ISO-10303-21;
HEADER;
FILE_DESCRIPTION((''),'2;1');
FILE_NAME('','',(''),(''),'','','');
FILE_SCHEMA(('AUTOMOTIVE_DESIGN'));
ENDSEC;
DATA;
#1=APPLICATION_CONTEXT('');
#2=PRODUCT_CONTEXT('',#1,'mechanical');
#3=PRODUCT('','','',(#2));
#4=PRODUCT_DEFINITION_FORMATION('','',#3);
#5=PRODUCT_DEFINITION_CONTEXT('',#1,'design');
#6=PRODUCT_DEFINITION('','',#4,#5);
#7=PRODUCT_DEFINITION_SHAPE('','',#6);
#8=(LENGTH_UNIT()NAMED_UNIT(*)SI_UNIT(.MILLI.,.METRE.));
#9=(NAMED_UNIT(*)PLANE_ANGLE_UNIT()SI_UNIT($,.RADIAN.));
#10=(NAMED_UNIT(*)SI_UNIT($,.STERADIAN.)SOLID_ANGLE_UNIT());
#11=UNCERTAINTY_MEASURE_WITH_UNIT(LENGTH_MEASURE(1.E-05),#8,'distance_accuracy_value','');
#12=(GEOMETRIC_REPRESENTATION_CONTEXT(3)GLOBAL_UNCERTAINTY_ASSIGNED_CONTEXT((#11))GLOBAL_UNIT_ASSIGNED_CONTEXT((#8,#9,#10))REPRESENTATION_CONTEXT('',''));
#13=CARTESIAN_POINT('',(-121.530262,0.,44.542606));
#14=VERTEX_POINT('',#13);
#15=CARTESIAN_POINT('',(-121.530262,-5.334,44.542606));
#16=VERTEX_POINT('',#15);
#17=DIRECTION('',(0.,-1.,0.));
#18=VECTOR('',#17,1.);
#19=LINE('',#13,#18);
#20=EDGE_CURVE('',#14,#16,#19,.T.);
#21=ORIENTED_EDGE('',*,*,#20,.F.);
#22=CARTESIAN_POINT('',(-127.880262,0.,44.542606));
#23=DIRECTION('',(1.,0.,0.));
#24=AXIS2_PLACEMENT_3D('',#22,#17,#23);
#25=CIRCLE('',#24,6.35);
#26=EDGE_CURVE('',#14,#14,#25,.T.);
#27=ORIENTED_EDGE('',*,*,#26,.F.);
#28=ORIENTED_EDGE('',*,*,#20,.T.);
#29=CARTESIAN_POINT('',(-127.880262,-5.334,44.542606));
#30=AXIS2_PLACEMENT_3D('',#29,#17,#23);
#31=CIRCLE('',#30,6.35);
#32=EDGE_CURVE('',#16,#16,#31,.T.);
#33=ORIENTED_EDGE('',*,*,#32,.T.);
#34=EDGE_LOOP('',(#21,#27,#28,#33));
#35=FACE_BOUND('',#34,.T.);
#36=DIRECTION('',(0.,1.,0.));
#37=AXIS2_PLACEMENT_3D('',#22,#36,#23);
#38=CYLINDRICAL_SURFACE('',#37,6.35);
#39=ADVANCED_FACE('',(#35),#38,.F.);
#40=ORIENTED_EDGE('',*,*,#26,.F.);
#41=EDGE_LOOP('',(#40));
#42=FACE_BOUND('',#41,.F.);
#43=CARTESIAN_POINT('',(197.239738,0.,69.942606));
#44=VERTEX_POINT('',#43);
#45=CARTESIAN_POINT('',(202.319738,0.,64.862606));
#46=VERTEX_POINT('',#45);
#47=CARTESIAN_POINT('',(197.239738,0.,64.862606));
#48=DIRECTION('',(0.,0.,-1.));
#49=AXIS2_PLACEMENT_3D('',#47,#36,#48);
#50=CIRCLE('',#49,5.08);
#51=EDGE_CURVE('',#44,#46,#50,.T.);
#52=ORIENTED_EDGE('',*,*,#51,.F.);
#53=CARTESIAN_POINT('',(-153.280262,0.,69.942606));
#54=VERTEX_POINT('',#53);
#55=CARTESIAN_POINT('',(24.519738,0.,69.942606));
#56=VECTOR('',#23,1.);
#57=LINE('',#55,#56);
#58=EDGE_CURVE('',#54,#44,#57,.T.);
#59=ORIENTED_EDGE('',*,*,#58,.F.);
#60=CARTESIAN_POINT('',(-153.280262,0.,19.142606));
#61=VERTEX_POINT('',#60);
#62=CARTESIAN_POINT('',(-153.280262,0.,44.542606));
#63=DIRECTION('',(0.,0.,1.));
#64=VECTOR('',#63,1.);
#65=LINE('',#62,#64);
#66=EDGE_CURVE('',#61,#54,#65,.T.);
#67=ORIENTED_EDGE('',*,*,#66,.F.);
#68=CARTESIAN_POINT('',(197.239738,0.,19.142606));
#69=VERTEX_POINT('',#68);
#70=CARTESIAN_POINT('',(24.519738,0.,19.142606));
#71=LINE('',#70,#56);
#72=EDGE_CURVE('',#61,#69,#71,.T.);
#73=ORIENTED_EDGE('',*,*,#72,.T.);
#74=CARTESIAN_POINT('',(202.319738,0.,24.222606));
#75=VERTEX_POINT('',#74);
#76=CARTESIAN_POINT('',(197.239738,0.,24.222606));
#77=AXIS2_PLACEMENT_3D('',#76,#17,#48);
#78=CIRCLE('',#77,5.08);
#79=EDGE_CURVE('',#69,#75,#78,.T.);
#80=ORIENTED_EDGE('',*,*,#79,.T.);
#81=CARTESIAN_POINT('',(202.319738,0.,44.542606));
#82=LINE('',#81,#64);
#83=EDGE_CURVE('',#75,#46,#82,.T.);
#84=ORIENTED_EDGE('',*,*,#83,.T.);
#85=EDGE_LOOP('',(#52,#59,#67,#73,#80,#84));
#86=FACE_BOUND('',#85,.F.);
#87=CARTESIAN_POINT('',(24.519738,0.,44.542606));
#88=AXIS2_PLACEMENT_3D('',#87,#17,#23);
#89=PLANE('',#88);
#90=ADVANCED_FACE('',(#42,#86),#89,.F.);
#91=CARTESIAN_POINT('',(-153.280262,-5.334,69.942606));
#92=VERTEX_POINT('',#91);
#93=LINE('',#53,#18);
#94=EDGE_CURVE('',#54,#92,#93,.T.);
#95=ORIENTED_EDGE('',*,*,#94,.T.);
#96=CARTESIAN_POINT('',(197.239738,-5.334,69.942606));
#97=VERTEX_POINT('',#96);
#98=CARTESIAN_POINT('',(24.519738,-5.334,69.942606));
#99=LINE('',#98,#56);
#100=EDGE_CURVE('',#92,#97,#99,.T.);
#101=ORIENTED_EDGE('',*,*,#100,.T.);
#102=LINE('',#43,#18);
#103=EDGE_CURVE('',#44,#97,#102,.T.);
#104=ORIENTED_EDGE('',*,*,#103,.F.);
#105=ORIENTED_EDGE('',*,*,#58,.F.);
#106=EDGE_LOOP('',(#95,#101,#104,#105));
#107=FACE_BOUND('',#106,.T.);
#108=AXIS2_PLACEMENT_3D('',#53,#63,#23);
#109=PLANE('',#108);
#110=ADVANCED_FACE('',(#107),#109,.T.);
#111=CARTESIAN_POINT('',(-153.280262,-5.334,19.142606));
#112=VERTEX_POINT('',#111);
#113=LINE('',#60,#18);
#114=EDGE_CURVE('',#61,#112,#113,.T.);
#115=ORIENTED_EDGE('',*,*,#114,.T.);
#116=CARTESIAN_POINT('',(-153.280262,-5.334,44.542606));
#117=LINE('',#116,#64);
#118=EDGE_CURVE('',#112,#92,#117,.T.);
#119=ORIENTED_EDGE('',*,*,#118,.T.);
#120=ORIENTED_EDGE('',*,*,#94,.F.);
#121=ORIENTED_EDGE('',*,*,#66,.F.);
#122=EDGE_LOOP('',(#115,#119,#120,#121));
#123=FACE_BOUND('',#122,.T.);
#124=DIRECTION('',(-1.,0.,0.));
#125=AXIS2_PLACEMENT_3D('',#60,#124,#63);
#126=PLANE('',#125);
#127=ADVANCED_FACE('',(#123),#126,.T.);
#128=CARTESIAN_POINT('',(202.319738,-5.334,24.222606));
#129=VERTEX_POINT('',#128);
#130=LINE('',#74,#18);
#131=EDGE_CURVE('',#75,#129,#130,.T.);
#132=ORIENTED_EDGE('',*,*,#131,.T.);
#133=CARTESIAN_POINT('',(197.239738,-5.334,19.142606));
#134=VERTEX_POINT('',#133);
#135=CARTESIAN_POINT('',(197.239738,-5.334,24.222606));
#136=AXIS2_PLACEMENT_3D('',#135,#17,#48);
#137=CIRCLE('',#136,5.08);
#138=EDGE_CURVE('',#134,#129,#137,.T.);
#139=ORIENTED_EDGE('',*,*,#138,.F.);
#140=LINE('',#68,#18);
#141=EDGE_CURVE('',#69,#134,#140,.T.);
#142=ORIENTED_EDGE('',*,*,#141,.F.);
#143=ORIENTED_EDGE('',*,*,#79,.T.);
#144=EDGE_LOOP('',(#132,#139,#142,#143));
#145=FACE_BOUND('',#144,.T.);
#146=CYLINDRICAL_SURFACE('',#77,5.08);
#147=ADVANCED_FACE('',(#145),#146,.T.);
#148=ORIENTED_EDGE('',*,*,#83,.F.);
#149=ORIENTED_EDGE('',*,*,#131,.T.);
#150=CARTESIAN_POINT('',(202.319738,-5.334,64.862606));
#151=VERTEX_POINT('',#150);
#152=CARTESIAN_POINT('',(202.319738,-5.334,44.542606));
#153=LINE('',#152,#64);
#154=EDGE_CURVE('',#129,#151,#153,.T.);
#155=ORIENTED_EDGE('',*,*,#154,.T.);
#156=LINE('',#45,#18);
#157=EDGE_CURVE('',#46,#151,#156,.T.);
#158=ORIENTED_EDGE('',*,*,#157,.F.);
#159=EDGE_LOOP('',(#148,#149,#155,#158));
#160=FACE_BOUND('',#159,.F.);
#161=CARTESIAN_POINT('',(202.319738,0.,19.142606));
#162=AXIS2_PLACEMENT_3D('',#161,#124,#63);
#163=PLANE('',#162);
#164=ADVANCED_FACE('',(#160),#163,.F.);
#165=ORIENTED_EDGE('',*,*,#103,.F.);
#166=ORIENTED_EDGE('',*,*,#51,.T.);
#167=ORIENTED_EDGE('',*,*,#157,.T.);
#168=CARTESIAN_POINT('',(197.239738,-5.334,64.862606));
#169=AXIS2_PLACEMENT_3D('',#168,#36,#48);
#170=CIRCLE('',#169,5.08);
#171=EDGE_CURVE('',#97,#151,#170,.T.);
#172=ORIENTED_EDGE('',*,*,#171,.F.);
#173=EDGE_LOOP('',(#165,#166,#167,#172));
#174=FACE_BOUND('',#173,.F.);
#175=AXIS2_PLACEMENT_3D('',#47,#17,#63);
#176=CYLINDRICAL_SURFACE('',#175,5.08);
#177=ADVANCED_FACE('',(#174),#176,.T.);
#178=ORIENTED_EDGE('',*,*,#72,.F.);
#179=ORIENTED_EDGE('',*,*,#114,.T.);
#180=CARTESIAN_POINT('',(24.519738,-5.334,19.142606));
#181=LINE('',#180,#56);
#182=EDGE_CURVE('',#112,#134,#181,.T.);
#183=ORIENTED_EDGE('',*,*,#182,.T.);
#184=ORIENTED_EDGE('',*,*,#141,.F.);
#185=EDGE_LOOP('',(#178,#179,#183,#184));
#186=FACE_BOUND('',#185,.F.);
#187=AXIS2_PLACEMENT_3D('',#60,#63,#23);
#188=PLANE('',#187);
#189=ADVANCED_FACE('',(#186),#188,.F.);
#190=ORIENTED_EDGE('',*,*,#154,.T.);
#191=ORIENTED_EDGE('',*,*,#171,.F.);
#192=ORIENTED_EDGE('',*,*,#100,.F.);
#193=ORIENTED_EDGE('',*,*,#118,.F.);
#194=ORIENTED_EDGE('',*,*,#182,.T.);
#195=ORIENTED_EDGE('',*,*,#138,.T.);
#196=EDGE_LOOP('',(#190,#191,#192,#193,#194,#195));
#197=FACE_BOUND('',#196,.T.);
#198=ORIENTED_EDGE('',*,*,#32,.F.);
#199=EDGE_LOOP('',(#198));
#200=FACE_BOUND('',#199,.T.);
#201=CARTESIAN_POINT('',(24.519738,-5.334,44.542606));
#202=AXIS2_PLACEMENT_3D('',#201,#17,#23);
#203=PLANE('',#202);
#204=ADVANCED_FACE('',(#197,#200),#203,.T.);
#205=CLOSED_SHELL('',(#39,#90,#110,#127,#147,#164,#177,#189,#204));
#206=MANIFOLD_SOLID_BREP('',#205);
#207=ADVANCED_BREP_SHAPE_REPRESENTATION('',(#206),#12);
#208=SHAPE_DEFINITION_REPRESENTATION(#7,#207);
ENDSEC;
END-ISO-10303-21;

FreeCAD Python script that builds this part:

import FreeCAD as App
import Part
import Sketcher

V = App.Vector
Q = App.Units.Quantity


def edges_at(feature, points):
    """Names of the edges that pass closest to the given points."""
    edges = feature.Shape.Edges
    near = lambda p: min(range(len(edges)), key=lambda i: edges[i].distToShape(Part.Vertex(*p))[0])
    return sorted({f"Edge{near(p) + 1}" for p in points})


def add_polygon(sketch, points):
    """Adds a closed chain of lines whose ends are joined by coincident constraints."""
    first, n = sketch.GeometryCount, len(points)
    for a, b in zip(points, points[1:] + points[:1]):
        sketch.addGeometry(Part.LineSegment(App.Vector(*a, 0), App.Vector(*b, 0)), False)
    for i in range(n):
        sketch.addConstraint(Sketcher.Constraint("Coincident", first + i, 2, first + (i + 1) % n, 1))

doc = App.newDocument("Part")
body = doc.addObject("PartDesign::Body", "Body")

sketch1 = doc.addObject("Sketcher::SketchObject", "Sketch")
body.addObject(sketch1)
sketch1.AttachmentSupport = (doc.XZ_Plane, [""])
sketch1.MapMode = "FlatFace"
add_polygon(sketch1, [(-153, 70), (-153, 19), (202, 19), (202, 70)])
sketch1.addGeometry(Part.Circle(V(-128, 45, 0), V(0, 0, 1), 6), False)
sketch1.addConstraint([
    Sketcher.Constraint("Vertical", 0),
    Sketcher.Constraint("Horizontal", 1),
    Sketcher.Constraint("Vertical", 2),
    Sketcher.Constraint("Horizontal", 3),
    Sketcher.Constraint("Diameter", 4, Q("0.5 in")),
    Sketcher.Constraint("DistanceX", 1, 1, 1, 2, Q("14 in")),
    Sketcher.Constraint("DistanceY", 0, 2, 0, 1, Q("2 in")),
    Sketcher.Constraint("DistanceX", 0, 2, 4, 3, Q("1 in")),
    Sketcher.Constraint("DistanceY", 0, 2, 4, 3, Q("1 in")),
    Sketcher.Constraint("DistanceX", 4, 3, -1, 1, 127.880262),
    Sketcher.Constraint("DistanceY", -1, 1, 4, 3, 44.542606),
])
pad1 = doc.addObject("PartDesign::Pad", "Pad")
body.addObject(pad1)
pad1.Profile = sketch1
pad1.Length = Q("0.21 in")
doc.recompute()

fillet = doc.addObject("PartDesign::Fillet", "Fillet")
body.addObject(fillet)
fillet.Base = (pad1, edges_at(pad1, [(202.32, -2.667, 69.943), (202.32, -2.667, 19.143)]))
fillet.Radius = Q("0.2 in")

doc.recompute()
